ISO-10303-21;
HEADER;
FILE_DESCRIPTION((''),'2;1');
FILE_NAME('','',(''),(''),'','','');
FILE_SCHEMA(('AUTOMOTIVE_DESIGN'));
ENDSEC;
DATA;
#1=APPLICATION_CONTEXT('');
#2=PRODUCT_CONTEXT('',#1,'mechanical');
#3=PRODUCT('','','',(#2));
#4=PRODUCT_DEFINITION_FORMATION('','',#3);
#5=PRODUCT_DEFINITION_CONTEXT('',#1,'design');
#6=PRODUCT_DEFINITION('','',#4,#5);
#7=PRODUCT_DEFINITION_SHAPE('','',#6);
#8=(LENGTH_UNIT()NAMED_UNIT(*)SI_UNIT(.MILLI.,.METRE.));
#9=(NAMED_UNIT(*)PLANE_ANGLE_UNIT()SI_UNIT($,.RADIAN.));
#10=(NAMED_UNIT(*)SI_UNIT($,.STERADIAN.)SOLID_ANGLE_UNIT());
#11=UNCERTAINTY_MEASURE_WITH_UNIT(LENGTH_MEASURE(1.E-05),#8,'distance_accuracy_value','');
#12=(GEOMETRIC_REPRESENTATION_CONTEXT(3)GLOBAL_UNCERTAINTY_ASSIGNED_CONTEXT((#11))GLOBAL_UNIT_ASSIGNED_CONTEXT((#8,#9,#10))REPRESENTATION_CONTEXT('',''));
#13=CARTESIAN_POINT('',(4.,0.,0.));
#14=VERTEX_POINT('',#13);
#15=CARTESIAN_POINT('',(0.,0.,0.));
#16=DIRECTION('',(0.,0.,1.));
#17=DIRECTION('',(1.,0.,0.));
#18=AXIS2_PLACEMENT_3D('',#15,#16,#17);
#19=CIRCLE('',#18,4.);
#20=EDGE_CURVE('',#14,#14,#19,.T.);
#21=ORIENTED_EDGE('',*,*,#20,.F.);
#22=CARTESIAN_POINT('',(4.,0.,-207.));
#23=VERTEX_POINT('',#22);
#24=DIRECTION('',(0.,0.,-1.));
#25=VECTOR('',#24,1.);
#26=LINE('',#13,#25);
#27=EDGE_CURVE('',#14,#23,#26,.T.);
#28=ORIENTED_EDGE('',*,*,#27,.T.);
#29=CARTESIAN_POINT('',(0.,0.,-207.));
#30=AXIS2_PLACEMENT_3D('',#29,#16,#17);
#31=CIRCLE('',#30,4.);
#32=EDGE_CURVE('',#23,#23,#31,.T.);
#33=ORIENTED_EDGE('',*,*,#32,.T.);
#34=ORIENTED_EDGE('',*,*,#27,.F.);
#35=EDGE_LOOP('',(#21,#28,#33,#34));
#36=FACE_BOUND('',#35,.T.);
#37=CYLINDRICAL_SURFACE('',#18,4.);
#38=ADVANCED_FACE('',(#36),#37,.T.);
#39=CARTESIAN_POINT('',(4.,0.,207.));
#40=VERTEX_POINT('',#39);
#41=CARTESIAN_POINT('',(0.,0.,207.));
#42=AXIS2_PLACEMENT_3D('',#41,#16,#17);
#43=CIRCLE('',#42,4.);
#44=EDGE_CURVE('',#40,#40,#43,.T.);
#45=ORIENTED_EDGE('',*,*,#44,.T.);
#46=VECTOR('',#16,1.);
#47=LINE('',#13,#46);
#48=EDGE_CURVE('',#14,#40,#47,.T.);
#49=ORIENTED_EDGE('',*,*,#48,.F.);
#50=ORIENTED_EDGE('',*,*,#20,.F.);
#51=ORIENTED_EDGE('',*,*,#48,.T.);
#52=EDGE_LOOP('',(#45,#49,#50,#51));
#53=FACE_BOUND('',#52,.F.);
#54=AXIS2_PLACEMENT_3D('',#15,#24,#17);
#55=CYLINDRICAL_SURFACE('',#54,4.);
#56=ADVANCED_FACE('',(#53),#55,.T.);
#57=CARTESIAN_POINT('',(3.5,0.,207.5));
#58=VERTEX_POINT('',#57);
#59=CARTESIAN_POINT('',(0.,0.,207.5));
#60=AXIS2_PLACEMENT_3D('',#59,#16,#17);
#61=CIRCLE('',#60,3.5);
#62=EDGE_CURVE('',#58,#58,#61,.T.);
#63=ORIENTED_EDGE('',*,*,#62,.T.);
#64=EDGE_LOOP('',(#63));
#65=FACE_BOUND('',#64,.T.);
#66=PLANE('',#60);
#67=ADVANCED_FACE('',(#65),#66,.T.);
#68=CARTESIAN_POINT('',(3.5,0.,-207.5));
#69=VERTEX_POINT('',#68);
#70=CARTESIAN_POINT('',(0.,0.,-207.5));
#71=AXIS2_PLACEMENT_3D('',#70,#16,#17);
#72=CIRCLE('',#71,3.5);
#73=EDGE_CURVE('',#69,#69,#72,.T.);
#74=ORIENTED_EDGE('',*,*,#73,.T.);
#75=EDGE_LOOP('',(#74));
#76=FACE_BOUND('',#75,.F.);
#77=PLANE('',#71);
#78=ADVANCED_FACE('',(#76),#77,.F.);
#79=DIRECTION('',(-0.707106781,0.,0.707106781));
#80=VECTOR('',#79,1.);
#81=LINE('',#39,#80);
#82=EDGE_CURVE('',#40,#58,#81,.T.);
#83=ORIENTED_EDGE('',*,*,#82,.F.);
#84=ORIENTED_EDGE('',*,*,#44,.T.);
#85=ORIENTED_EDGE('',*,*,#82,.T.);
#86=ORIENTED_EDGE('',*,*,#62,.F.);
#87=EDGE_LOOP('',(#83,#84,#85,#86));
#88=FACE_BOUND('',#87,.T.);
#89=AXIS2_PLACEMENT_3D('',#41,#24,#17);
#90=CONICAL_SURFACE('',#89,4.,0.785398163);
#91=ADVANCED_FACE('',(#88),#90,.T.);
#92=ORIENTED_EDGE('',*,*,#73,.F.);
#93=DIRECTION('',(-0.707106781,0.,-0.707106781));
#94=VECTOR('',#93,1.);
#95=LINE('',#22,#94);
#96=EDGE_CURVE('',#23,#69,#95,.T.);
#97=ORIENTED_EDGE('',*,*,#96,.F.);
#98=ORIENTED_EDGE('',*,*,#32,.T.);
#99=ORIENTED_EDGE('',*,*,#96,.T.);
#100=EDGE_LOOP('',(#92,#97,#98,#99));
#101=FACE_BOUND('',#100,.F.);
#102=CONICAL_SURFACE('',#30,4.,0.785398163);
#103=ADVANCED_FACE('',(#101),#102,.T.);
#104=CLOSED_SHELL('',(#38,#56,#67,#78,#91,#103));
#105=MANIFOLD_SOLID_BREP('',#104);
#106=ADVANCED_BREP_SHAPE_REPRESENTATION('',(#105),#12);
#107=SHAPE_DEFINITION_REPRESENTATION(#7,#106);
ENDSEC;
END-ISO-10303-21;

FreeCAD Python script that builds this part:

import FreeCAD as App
import Part
import Sketcher

V = App.Vector


def edges_at(feature, points):
    """Names of the edges that pass closest to the given points."""
    edges = feature.Shape.Edges
    near = lambda p: min(range(len(edges)), key=lambda i: edges[i].distToShape(Part.Vertex(*p))[0])
    return sorted({f"Edge{near(p) + 1}" for p in points})

doc = App.newDocument("Part")
body = doc.addObject("PartDesign::Body", "Body")

sketch1 = body.newObject("Sketcher::SketchObject", "Sketch")
sketch1.AttachmentSupport = (doc.getObject("XY_Plane"), [""])
sketch1.MapMode = "FlatFace"
sketch1.addGeometry(Part.Circle(V(0, 0, 0), V(0, 0, 1), 4), False)
sketch1.addConstraint([
    Sketcher.Constraint("Coincident", 0, 3, -1, 1),
    Sketcher.Constraint("Diameter", 0, 8.0),
])
pad1 = body.newObject("PartDesign::Pad", "Pad")
pad1.Profile = sketch1
pad1.Length = 415
pad1.Midplane = True
doc.recompute()

chamfer = body.newObject("PartDesign::Chamfer", "Chamfer")
chamfer.Base = (pad1, edges_at(pad1, [(-4, 0, 207.5), (-4, 0, -207.5)]))
chamfer.Size = 0.5

doc.recompute()
